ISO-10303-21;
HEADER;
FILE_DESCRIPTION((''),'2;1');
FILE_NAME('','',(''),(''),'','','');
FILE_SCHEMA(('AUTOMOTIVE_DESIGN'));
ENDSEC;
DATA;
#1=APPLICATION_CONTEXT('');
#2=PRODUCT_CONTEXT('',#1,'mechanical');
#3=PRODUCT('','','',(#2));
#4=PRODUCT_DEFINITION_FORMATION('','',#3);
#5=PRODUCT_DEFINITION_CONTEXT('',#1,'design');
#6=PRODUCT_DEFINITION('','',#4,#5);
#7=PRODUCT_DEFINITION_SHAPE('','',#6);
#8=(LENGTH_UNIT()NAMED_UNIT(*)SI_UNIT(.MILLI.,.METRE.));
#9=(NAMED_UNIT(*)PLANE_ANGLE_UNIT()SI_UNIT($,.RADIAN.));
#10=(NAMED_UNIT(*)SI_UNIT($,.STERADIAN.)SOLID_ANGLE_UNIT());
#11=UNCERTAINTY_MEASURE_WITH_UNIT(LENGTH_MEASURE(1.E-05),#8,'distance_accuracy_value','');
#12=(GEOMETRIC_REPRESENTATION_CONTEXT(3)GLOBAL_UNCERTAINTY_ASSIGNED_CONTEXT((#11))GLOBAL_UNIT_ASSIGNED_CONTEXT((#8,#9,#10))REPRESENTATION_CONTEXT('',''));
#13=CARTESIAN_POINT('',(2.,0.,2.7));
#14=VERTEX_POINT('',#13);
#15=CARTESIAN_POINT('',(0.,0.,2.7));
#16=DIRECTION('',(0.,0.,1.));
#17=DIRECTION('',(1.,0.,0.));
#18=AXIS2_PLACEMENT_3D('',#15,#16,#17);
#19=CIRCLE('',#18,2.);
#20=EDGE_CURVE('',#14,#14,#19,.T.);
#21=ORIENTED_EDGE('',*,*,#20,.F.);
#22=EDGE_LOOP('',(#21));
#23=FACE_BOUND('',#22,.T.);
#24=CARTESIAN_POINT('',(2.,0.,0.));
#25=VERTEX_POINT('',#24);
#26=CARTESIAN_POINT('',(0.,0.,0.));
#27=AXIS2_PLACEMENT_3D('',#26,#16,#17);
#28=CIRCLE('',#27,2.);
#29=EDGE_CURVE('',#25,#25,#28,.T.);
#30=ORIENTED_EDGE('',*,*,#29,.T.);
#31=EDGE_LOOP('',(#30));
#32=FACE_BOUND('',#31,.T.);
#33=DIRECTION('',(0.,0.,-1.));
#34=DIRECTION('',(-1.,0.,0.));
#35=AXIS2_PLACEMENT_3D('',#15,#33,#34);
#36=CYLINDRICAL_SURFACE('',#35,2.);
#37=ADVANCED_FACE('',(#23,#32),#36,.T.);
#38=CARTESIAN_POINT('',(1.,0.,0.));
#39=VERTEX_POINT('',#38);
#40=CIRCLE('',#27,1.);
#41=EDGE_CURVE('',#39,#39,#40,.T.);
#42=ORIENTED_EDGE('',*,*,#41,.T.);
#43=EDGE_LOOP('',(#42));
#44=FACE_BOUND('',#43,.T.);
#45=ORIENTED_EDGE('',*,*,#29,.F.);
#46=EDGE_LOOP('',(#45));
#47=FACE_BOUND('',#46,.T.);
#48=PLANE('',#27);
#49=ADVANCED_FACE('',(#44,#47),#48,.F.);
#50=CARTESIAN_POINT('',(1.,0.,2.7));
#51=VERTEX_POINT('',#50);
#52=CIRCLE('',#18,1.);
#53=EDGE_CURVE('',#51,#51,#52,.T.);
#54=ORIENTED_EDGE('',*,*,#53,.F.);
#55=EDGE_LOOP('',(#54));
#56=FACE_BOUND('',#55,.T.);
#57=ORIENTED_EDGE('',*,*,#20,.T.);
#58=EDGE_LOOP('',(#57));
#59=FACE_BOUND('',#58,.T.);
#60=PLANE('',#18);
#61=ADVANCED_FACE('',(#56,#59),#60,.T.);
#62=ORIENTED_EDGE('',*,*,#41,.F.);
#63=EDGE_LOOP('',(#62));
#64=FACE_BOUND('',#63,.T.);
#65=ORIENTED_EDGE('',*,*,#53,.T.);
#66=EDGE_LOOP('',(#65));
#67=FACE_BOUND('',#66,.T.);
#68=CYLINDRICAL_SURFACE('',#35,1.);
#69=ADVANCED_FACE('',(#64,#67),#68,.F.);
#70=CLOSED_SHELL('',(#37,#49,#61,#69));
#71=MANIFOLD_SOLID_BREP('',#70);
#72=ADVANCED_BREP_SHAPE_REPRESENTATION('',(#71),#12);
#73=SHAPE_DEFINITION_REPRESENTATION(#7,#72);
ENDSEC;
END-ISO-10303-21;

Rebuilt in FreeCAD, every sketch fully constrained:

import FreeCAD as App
import Part
import Sketcher
from FreeCAD import Vector
Q = App.Units.Quantity

doc = App.newDocument("Part")
body = doc.addObject("PartDesign::Body", "Body")

# Sketch on XY plane
sketch1 = body.newObject("Sketcher::SketchObject", "Sketch")
sketch1.AttachmentSupport = (doc.getObject("XY_Plane"), [""])
sketch1.MapMode = "FlatFace"
sketch1.addGeometry(Part.Circle(Vector(0, 0, 0), Vector(0, 0, 1), 2), False)
sketch1.addGeometry(Part.Circle(Vector(0, 0, 0), Vector(0, 0, 1), 1), False)
sketch1.addConstraint(Sketcher.Constraint("Coincident", 0, 3, -1, 1))
sketch1.addConstraint(Sketcher.Constraint("Coincident", 1, 3, -1, 1))
sketch1.addConstraint(Sketcher.Constraint("Diameter", 0, Q("4 mm")))
sketch1.addConstraint(Sketcher.Constraint("Diameter", 1, Q("2 mm")))
pad1 = body.newObject("PartDesign::Pad", "Pad")
pad1.Profile = sketch1
pad1.Length = 2.7

doc.recompute()
